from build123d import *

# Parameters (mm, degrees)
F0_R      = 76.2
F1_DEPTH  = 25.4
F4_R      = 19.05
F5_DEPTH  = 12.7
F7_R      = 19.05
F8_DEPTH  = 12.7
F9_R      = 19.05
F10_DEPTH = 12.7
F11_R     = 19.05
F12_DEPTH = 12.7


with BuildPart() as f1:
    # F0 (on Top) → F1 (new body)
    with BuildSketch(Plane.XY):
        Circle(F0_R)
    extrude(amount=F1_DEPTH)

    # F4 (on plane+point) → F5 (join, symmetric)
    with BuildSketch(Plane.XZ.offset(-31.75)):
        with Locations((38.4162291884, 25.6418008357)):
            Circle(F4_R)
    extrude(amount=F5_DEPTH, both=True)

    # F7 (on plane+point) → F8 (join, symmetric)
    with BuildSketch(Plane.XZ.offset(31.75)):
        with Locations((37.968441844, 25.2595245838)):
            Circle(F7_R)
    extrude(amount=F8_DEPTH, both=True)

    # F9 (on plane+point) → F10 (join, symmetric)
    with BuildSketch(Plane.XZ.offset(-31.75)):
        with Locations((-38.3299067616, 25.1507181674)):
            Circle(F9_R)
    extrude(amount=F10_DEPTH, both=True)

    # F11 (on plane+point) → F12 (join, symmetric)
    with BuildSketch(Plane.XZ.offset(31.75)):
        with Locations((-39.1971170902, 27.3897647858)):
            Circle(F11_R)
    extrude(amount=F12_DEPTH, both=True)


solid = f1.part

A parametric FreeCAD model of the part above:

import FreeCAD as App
import Part
import Sketcher
Q = App.Units.Quantity

doc = App.newDocument("Part")
body = doc.addObject("PartDesign::Body", "Body")

# Sketch on XY plane
sketch1 = body.newObject("Sketcher::SketchObject", "Sketch")
sketch1.AttachmentSupport = (doc.getObject("XY_Plane"), [""])
sketch1.MapMode = "FlatFace"
sketch1.addGeometry(Part.Circle(App.Vector(0, 0, 0), App.Vector(0, 0, 1), 76), False)
sketch1.addConstraint([
    Sketcher.Constraint("Coincident", 0, 3, -1, 1),
    Sketcher.Constraint("Diameter", 0, Q("6 in")),
])
pad1 = body.newObject("PartDesign::Pad", "Pad")
pad1.Profile = sketch1
pad1.Length = Q("1 in")

# Sketch on XZ plane
sketch2 = body.newObject("Sketcher::SketchObject", "Sketch001")
sketch2.AttachmentSupport = (doc.getObject("XZ_Plane"), [""])
sketch2.MapMode = "FlatFace"
sketch2.AttachmentOffset = App.Placement(App.Vector(0, 0, -1.25 * 25.4), App.Rotation())
sketch2.addGeometry(Part.Circle(App.Vector(38, 26, 0), App.Vector(0, 0, 1), 19), False)
sketch2.addConstraint([
    Sketcher.Constraint("Diameter", 0, Q("1.5 in")),
    Sketcher.Constraint("DistanceY", -1, 1, 0, 3, Q("25.641801 mm")),
    Sketcher.Constraint("DistanceX", -1, 1, 0, 3, Q("38.416229 mm")),
])
pad2 = body.newObject("PartDesign::Pad", "Pad001")
pad2.Profile = sketch2
pad2.Length = Q("1 in")
pad2.Midplane = True

# Sketch on XZ plane
sketch3 = body.newObject("Sketcher::SketchObject", "Sketch002")
sketch3.AttachmentSupport = (doc.getObject("XZ_Plane"), [""])
sketch3.MapMode = "FlatFace"
sketch3.AttachmentOffset = App.Placement(App.Vector(0, 0, 1.25 * 25.4), App.Rotation())
sketch3.addGeometry(Part.Circle(App.Vector(38, 25, 0), App.Vector(0, 0, 1), 19), False)
sketch3.addConstraint([
    Sketcher.Constraint("Diameter", 0, Q("1.5 in")),
    Sketcher.Constraint("DistanceX", -1, 1, 0, 3, Q("37.968442 mm")),
    Sketcher.Constraint("DistanceY", -1, 1, 0, 3, Q("25.259525 mm")),
])
pad3 = body.newObject("PartDesign::Pad", "Pad002")
pad3.Profile = sketch3
pad3.Length = Q("1 in")
pad3.Midplane = True

# Sketch on XZ plane
sketch4 = body.newObject("Sketcher::SketchObject", "Sketch003")
sketch4.AttachmentSupport = (doc.getObject("XZ_Plane"), [""])
sketch4.MapMode = "FlatFace"
sketch4.AttachmentOffset = App.Placement(App.Vector(0, 0, -1.25 * 25.4), App.Rotation())
sketch4.addGeometry(Part.Circle(App.Vector(-38, 25, 0), App.Vector(0, 0, 1), 19), False)
sketch4.addConstraint([
    Sketcher.Constraint("Diameter", 0, Q("1.5 in")),
    Sketcher.Constraint("DistanceY", -1, 1, 0, 3, Q("25.150718 mm")),
    Sketcher.Constraint("DistanceX", 0, 3, -1, 1, Q("38.329907 mm")),
])
pad4 = body.newObject("PartDesign::Pad", "Pad003")
pad4.Profile = sketch4
pad4.Length = Q("1 in")
pad4.Midplane = True

# Sketch on XZ plane
sketch5 = body.newObject("Sketcher::SketchObject", "Sketch004")
sketch5.AttachmentSupport = (doc.getObject("XZ_Plane"), [""])
sketch5.MapMode = "FlatFace"
sketch5.AttachmentOffset = App.Placement(App.Vector(0, 0, 1.25 * 25.4), App.Rotation())
sketch5.addGeometry(Part.Circle(App.Vector(-39, 27, 0), App.Vector(0, 0, 1), 19), False)
sketch5.addConstraint([
    Sketcher.Constraint("Diameter", 0, Q("1.5 in")),
    Sketcher.Constraint("DistanceX", 0, 3, -1, 1, Q("39.197117 mm")),
    Sketcher.Constraint("DistanceY", -1, 1, 0, 3, Q("27.389765 mm")),
])
pad5 = body.newObject("PartDesign::Pad", "Pad004")
pad5.Profile = sketch5
pad5.Length = Q("1 in")
pad5.Midplane = True

doc.recompute()
